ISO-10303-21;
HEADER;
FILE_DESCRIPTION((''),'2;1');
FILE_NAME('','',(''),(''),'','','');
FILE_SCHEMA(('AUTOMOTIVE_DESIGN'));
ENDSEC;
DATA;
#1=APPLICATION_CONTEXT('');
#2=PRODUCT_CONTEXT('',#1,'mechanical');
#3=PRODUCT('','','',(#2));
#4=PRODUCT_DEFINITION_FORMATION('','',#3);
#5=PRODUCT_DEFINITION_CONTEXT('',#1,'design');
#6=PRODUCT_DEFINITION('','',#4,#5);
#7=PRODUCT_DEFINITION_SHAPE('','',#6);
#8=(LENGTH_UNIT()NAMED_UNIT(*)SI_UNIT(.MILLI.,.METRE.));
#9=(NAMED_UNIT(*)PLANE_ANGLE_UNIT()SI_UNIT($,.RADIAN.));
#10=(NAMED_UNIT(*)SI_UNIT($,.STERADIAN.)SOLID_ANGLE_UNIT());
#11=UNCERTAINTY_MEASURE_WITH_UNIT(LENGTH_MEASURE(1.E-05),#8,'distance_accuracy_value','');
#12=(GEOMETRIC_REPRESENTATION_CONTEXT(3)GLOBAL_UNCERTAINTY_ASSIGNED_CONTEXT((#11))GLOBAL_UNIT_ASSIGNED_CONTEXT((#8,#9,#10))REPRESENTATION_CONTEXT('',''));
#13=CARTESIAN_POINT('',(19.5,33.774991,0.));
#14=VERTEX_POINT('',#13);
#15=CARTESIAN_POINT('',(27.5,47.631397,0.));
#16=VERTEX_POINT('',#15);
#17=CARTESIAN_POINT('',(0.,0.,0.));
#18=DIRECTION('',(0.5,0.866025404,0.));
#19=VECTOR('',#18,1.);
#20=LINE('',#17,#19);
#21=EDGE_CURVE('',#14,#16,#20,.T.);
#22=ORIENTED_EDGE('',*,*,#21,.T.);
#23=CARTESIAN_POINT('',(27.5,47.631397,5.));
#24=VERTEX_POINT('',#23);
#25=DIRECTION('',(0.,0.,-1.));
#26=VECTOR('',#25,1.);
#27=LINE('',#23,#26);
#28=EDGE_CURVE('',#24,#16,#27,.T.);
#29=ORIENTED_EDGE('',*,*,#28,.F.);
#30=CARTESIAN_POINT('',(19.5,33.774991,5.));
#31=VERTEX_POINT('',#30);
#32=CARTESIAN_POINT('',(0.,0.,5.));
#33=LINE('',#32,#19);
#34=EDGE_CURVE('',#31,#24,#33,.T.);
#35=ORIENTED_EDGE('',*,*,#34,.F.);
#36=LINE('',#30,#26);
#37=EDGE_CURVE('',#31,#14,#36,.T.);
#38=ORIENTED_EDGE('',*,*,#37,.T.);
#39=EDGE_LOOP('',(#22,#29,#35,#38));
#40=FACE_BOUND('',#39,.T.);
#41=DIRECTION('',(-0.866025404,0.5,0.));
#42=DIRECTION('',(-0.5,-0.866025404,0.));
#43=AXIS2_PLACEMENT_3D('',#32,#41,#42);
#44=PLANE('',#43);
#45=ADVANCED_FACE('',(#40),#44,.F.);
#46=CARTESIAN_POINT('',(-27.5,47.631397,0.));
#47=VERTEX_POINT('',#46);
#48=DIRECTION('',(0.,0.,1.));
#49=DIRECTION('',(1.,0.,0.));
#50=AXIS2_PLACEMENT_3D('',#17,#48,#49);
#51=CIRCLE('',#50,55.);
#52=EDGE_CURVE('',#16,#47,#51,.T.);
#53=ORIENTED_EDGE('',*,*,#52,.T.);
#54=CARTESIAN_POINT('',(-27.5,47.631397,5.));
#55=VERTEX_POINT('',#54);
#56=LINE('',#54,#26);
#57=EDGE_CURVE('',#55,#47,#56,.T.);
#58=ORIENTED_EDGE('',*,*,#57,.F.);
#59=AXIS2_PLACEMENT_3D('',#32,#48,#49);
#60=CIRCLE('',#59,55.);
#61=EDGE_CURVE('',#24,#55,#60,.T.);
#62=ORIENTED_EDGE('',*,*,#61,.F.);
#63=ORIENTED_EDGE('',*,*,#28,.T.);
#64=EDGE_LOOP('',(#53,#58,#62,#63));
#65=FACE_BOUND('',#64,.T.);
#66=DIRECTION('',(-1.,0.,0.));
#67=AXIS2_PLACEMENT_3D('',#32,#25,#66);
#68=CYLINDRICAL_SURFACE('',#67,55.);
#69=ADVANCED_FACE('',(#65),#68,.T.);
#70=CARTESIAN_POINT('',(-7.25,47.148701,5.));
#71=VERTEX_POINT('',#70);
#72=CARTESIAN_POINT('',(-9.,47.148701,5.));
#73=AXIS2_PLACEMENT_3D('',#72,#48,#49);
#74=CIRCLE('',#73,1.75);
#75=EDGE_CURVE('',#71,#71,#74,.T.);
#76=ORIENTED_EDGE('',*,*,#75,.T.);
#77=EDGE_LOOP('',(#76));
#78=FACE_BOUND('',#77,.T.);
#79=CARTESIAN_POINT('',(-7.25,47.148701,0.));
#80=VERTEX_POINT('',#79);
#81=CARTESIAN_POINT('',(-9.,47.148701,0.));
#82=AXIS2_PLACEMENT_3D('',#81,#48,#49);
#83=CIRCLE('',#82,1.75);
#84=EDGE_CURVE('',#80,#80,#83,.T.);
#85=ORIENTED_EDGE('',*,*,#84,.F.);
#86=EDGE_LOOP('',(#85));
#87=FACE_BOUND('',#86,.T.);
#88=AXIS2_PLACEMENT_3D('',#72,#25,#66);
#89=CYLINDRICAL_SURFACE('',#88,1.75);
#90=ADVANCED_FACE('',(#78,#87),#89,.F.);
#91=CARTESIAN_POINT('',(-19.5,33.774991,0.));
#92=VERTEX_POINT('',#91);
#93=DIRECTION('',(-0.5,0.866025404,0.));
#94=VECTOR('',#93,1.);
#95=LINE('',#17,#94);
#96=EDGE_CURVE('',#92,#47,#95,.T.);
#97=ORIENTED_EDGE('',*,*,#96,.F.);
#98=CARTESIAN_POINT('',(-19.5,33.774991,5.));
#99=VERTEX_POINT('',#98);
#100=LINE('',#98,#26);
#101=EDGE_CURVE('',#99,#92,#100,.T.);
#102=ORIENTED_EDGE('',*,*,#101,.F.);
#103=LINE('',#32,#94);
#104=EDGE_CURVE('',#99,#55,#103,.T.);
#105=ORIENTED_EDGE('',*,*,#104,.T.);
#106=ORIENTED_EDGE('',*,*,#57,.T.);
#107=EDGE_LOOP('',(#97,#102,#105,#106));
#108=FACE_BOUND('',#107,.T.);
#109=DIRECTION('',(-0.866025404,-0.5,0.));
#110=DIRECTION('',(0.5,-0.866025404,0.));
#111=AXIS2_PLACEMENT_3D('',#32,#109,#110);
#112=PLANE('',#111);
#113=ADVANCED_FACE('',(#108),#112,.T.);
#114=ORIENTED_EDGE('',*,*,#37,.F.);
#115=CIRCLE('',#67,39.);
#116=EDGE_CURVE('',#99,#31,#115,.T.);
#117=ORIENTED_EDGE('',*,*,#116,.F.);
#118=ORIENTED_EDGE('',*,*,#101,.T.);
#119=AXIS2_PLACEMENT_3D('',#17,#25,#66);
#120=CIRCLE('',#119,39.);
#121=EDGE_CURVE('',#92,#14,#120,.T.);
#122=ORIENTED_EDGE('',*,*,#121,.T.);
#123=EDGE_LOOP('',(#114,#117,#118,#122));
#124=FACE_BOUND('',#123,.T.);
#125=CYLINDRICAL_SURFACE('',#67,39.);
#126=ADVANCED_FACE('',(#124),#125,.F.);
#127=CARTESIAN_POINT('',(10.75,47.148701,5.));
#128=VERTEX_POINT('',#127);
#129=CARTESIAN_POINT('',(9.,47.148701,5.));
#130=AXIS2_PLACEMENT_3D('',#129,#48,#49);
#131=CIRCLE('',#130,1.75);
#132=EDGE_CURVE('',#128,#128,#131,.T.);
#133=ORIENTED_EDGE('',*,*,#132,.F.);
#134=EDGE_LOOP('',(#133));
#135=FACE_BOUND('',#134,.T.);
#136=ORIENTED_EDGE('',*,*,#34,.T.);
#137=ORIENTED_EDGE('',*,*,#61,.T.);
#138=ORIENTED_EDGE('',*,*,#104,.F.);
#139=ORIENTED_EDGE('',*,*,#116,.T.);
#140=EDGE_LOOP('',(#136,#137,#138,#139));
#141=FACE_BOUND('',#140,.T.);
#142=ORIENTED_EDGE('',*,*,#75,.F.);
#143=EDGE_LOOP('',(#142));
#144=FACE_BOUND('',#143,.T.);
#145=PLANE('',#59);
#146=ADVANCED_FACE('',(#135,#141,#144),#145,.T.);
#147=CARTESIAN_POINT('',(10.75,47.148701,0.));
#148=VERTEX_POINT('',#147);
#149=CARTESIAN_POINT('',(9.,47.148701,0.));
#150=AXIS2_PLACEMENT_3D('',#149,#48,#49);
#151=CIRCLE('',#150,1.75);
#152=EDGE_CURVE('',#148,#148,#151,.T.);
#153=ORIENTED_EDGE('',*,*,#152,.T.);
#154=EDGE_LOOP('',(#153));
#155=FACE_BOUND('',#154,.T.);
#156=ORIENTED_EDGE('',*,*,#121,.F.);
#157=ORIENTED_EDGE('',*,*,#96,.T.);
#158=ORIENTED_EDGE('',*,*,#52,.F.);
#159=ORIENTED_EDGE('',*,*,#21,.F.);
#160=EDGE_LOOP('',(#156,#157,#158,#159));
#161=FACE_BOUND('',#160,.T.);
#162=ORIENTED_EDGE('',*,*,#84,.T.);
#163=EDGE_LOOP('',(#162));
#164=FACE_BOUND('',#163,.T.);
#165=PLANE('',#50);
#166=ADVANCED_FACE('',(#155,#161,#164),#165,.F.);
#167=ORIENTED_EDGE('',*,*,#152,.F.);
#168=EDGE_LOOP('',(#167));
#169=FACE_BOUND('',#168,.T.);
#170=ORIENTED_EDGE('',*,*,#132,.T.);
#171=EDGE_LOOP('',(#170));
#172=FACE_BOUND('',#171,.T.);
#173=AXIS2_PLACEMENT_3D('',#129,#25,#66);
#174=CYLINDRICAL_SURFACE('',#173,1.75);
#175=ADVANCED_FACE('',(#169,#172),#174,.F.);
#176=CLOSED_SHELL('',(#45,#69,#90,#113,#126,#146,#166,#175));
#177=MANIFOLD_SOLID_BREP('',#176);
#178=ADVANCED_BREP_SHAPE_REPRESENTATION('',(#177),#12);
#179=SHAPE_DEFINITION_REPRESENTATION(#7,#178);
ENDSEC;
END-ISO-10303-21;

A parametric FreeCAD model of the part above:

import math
import FreeCAD as App
import Part
import Sketcher

V = App.Vector
Q = App.Units.Quantity

doc = App.newDocument("Part")
params = doc.addObject("Spreadsheet::Sheet", "Params")
for row, (alias, value) in enumerate([
    ("sketch1_radius", "55 mm"),
    ("sketch1_diameter", "3.5 mm"),
    ("pad1_length", "5 mm"),
    ("sketch2_diameter", "78 mm"),
], start=1):
    params.set(f"A{row}", alias)
    params.set(f"B{row}", "=" + value)
    params.setAlias(f"B{row}", alias)

body = doc.addObject("PartDesign::Body", "Body")

# Sketch on XY plane
sketch1 = body.newObject("Sketcher::SketchObject", "Sketch")
sketch1.AttachmentSupport = (doc.getObject("XY_Plane"), [""])
sketch1.MapMode = "FlatFace"
sketch1.addGeometry([
    Part.LineSegment(V(0, 0, 0), V(27.5, 47.631397, 0)),  # 0
    Part.ArcOfCircle(Part.Circle(V(0, 0, 0), V(0, 0, 1), 55), math.radians(60), math.radians(120)),  # 1
    Part.LineSegment(V(-27.5, 47.631397, 0), V(0, 0, 0)),  # 2
    Part.Circle(V(-9, 47.148701, 0), V(0, 0, 1), 1.75),  # 3
    Part.Circle(V(9, 47.148701, 0), V(0, 0, 1), 1.75),  # 4
], False)
sketch1.addConstraint([
    Sketcher.Constraint("Coincident", 0, 2, 1, 1),
    Sketcher.Constraint("Coincident", 1, 2, 2, 1),
    Sketcher.Constraint("Coincident", 2, 2, 0, 1),
    Sketcher.Constraint("Coincident", 1, 3, -1, 1),
    Sketcher.Constraint("Coincident", 2, 2, -1, 1),
    Sketcher.Constraint("Equal", 3, 4),
    Sketcher.Constraint("Symmetric", 3, 3, 4, 3, -2),
    Sketcher.Constraint("Horizontal", 0, 2, 1, 2),
    Sketcher.Constraint("Radius", 1, 55.0),
    Sketcher.Constraint("Diameter", 3, 3.5),
    Sketcher.Constraint("Angle", 0, Q("60 deg")),
    Sketcher.Constraint("DistanceX", 3, 3, -1, 1, 9.0),
    Sketcher.Constraint("DistanceY", -1, 1, 3, 3, 47.148701),
])
sketch1.setExpression("Constraints[8]", "Params.sketch1_radius")
sketch1.setExpression("Constraints[9]", "Params.sketch1_diameter")
pad1 = body.newObject("PartDesign::Pad", "Pad")
pad1.Profile = sketch1
pad1.setExpression("Length", "Params.pad1_length")

# Sketch on XY plane
sketch2 = body.newObject("Sketcher::SketchObject", "Sketch001")
sketch2.AttachmentSupport = (doc.getObject("XY_Plane"), [""])
sketch2.MapMode = "FlatFace"
sketch2.addGeometry(Part.Circle(V(0, 0, 0), V(0, 0, 1), 39), False)
sketch2.addConstraint([
    Sketcher.Constraint("Coincident", 0, 3, -1, 1),
    Sketcher.Constraint("Diameter", 0, 78.0),
])
sketch2.setExpression("Constraints[1]", "Params.sketch2_diameter")
pocket1 = body.newObject("PartDesign::Pocket", "Pocket")
pocket1.Profile = sketch2
pocket1.Type = "ThroughAll"
pocket1.Reversed = True

doc.recompute()
